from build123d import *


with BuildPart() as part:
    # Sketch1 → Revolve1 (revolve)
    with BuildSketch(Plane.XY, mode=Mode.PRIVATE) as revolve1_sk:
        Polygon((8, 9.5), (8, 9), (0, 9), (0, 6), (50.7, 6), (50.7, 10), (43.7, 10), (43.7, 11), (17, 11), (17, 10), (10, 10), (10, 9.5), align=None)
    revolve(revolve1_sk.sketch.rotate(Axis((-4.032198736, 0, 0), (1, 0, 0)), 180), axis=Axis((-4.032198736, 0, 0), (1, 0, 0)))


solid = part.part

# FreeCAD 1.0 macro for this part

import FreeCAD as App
import Part
import Sketcher
Q = App.Units.Quantity

doc = App.newDocument("Part")
body = doc.addObject("PartDesign::Body", "Body")

# Sketch on XY plane
sketch1 = body.newObject("Sketcher::SketchObject", "Sketch")
sketch1.AttachmentSupport = (doc.getObject("XY_Plane"), [""])
sketch1.MapMode = "FlatFace"
sketch1.addGeometry([
    Part.LineSegment(App.Vector(8, 9.5, 0), App.Vector(8, 9, 0)),  # 0
    Part.LineSegment(App.Vector(8, 9, 0), App.Vector(0, 9, 0)),  # 1
    Part.LineSegment(App.Vector(0, 9, 0), App.Vector(0, 6, 0)),  # 2
    Part.LineSegment(App.Vector(0, 6, 0), App.Vector(50.7, 6, 0)),  # 3
    Part.LineSegment(App.Vector(50.7, 6, 0), App.Vector(50.7, 10, 0)),  # 4
    Part.LineSegment(App.Vector(50.7, 10, 0), App.Vector(43.7, 10, 0)),  # 5
    Part.LineSegment(App.Vector(43.7, 10, 0), App.Vector(43.7, 11, 0)),  # 6
    Part.LineSegment(App.Vector(43.7, 11, 0), App.Vector(17, 11, 0)),  # 7
    Part.LineSegment(App.Vector(17, 11, 0), App.Vector(17, 10, 0)),  # 8
    Part.LineSegment(App.Vector(17, 10, 0), App.Vector(10, 10, 0)),  # 9
    Part.LineSegment(App.Vector(10, 10, 0), App.Vector(10, 9.5, 0)),  # 10
    Part.LineSegment(App.Vector(10, 9.5, 0), App.Vector(8, 9.5, 0)),  # 11
], False)
sketch1.addConstraint([
    Sketcher.Constraint("Coincident", 0, 2, 1, 1),
    Sketcher.Constraint("Coincident", 1, 2, 2, 1),
    Sketcher.Constraint("Coincident", 2, 2, 3, 1),
    Sketcher.Constraint("Coincident", 3, 2, 4, 1),
    Sketcher.Constraint("Coincident", 4, 2, 5, 1),
    Sketcher.Constraint("Coincident", 5, 2, 6, 1),
    Sketcher.Constraint("Coincident", 6, 2, 7, 1),
    Sketcher.Constraint("Coincident", 7, 2, 8, 1),
    Sketcher.Constraint("Coincident", 8, 2, 9, 1),
    Sketcher.Constraint("Coincident", 9, 2, 10, 1),
    Sketcher.Constraint("Coincident", 10, 2, 11, 1),
    Sketcher.Constraint("Coincident", 11, 2, 0, 1),
    Sketcher.Constraint("Vertical", 0),
    Sketcher.Constraint("Horizontal", 1),
    Sketcher.Constraint("Vertical", 2),
    Sketcher.Constraint("Horizontal", 3),
    Sketcher.Constraint("Vertical", 4),
    Sketcher.Constraint("Horizontal", 5),
    Sketcher.Constraint("Vertical", 6),
    Sketcher.Constraint("Horizontal", 7),
    Sketcher.Constraint("Vertical", 8),
    Sketcher.Constraint("Horizontal", 9),
    Sketcher.Constraint("Vertical", 10),
    Sketcher.Constraint("Horizontal", 11),
    Sketcher.Constraint("PointOnObject", 1, 2, -2),
    Sketcher.Constraint("Horizontal", 5, 2, 8, 2),
    Sketcher.Constraint("Equal", 5, 9),
    Sketcher.Constraint("Equal", 0, 10),
    Sketcher.Constraint("DistanceX", 1, 2, 1, 1, Q("8 mm")),
    Sketcher.Constraint("DistanceX", 5, 2, 5, 1, Q("7 mm")),
    Sketcher.Constraint("DistanceX", 11, 2, 11, 1, Q("2 mm")),
    Sketcher.Constraint("DistanceY", 2, 2, 2, 1, Q("3 mm")),
    Sketcher.Constraint("DistanceY", 4, 1, 4, 2, Q("4 mm")),
    Sketcher.Constraint("DistanceY", 6, 1, 6, 2, Q("1 mm")),
    Sketcher.Constraint("DistanceX", 3, 1, 3, 2, Q("50.7 mm")),
    Sketcher.Constraint("DistanceY", -1, 1, 0, 2, Q("9 mm")),
])
revolution = body.newObject("PartDesign::Revolution", "Revolution")
revolution.Profile = sketch1
revolution.ReferenceAxis = (sketch1, ["H_Axis"])
revolution.Angle = 360

doc.recompute()
